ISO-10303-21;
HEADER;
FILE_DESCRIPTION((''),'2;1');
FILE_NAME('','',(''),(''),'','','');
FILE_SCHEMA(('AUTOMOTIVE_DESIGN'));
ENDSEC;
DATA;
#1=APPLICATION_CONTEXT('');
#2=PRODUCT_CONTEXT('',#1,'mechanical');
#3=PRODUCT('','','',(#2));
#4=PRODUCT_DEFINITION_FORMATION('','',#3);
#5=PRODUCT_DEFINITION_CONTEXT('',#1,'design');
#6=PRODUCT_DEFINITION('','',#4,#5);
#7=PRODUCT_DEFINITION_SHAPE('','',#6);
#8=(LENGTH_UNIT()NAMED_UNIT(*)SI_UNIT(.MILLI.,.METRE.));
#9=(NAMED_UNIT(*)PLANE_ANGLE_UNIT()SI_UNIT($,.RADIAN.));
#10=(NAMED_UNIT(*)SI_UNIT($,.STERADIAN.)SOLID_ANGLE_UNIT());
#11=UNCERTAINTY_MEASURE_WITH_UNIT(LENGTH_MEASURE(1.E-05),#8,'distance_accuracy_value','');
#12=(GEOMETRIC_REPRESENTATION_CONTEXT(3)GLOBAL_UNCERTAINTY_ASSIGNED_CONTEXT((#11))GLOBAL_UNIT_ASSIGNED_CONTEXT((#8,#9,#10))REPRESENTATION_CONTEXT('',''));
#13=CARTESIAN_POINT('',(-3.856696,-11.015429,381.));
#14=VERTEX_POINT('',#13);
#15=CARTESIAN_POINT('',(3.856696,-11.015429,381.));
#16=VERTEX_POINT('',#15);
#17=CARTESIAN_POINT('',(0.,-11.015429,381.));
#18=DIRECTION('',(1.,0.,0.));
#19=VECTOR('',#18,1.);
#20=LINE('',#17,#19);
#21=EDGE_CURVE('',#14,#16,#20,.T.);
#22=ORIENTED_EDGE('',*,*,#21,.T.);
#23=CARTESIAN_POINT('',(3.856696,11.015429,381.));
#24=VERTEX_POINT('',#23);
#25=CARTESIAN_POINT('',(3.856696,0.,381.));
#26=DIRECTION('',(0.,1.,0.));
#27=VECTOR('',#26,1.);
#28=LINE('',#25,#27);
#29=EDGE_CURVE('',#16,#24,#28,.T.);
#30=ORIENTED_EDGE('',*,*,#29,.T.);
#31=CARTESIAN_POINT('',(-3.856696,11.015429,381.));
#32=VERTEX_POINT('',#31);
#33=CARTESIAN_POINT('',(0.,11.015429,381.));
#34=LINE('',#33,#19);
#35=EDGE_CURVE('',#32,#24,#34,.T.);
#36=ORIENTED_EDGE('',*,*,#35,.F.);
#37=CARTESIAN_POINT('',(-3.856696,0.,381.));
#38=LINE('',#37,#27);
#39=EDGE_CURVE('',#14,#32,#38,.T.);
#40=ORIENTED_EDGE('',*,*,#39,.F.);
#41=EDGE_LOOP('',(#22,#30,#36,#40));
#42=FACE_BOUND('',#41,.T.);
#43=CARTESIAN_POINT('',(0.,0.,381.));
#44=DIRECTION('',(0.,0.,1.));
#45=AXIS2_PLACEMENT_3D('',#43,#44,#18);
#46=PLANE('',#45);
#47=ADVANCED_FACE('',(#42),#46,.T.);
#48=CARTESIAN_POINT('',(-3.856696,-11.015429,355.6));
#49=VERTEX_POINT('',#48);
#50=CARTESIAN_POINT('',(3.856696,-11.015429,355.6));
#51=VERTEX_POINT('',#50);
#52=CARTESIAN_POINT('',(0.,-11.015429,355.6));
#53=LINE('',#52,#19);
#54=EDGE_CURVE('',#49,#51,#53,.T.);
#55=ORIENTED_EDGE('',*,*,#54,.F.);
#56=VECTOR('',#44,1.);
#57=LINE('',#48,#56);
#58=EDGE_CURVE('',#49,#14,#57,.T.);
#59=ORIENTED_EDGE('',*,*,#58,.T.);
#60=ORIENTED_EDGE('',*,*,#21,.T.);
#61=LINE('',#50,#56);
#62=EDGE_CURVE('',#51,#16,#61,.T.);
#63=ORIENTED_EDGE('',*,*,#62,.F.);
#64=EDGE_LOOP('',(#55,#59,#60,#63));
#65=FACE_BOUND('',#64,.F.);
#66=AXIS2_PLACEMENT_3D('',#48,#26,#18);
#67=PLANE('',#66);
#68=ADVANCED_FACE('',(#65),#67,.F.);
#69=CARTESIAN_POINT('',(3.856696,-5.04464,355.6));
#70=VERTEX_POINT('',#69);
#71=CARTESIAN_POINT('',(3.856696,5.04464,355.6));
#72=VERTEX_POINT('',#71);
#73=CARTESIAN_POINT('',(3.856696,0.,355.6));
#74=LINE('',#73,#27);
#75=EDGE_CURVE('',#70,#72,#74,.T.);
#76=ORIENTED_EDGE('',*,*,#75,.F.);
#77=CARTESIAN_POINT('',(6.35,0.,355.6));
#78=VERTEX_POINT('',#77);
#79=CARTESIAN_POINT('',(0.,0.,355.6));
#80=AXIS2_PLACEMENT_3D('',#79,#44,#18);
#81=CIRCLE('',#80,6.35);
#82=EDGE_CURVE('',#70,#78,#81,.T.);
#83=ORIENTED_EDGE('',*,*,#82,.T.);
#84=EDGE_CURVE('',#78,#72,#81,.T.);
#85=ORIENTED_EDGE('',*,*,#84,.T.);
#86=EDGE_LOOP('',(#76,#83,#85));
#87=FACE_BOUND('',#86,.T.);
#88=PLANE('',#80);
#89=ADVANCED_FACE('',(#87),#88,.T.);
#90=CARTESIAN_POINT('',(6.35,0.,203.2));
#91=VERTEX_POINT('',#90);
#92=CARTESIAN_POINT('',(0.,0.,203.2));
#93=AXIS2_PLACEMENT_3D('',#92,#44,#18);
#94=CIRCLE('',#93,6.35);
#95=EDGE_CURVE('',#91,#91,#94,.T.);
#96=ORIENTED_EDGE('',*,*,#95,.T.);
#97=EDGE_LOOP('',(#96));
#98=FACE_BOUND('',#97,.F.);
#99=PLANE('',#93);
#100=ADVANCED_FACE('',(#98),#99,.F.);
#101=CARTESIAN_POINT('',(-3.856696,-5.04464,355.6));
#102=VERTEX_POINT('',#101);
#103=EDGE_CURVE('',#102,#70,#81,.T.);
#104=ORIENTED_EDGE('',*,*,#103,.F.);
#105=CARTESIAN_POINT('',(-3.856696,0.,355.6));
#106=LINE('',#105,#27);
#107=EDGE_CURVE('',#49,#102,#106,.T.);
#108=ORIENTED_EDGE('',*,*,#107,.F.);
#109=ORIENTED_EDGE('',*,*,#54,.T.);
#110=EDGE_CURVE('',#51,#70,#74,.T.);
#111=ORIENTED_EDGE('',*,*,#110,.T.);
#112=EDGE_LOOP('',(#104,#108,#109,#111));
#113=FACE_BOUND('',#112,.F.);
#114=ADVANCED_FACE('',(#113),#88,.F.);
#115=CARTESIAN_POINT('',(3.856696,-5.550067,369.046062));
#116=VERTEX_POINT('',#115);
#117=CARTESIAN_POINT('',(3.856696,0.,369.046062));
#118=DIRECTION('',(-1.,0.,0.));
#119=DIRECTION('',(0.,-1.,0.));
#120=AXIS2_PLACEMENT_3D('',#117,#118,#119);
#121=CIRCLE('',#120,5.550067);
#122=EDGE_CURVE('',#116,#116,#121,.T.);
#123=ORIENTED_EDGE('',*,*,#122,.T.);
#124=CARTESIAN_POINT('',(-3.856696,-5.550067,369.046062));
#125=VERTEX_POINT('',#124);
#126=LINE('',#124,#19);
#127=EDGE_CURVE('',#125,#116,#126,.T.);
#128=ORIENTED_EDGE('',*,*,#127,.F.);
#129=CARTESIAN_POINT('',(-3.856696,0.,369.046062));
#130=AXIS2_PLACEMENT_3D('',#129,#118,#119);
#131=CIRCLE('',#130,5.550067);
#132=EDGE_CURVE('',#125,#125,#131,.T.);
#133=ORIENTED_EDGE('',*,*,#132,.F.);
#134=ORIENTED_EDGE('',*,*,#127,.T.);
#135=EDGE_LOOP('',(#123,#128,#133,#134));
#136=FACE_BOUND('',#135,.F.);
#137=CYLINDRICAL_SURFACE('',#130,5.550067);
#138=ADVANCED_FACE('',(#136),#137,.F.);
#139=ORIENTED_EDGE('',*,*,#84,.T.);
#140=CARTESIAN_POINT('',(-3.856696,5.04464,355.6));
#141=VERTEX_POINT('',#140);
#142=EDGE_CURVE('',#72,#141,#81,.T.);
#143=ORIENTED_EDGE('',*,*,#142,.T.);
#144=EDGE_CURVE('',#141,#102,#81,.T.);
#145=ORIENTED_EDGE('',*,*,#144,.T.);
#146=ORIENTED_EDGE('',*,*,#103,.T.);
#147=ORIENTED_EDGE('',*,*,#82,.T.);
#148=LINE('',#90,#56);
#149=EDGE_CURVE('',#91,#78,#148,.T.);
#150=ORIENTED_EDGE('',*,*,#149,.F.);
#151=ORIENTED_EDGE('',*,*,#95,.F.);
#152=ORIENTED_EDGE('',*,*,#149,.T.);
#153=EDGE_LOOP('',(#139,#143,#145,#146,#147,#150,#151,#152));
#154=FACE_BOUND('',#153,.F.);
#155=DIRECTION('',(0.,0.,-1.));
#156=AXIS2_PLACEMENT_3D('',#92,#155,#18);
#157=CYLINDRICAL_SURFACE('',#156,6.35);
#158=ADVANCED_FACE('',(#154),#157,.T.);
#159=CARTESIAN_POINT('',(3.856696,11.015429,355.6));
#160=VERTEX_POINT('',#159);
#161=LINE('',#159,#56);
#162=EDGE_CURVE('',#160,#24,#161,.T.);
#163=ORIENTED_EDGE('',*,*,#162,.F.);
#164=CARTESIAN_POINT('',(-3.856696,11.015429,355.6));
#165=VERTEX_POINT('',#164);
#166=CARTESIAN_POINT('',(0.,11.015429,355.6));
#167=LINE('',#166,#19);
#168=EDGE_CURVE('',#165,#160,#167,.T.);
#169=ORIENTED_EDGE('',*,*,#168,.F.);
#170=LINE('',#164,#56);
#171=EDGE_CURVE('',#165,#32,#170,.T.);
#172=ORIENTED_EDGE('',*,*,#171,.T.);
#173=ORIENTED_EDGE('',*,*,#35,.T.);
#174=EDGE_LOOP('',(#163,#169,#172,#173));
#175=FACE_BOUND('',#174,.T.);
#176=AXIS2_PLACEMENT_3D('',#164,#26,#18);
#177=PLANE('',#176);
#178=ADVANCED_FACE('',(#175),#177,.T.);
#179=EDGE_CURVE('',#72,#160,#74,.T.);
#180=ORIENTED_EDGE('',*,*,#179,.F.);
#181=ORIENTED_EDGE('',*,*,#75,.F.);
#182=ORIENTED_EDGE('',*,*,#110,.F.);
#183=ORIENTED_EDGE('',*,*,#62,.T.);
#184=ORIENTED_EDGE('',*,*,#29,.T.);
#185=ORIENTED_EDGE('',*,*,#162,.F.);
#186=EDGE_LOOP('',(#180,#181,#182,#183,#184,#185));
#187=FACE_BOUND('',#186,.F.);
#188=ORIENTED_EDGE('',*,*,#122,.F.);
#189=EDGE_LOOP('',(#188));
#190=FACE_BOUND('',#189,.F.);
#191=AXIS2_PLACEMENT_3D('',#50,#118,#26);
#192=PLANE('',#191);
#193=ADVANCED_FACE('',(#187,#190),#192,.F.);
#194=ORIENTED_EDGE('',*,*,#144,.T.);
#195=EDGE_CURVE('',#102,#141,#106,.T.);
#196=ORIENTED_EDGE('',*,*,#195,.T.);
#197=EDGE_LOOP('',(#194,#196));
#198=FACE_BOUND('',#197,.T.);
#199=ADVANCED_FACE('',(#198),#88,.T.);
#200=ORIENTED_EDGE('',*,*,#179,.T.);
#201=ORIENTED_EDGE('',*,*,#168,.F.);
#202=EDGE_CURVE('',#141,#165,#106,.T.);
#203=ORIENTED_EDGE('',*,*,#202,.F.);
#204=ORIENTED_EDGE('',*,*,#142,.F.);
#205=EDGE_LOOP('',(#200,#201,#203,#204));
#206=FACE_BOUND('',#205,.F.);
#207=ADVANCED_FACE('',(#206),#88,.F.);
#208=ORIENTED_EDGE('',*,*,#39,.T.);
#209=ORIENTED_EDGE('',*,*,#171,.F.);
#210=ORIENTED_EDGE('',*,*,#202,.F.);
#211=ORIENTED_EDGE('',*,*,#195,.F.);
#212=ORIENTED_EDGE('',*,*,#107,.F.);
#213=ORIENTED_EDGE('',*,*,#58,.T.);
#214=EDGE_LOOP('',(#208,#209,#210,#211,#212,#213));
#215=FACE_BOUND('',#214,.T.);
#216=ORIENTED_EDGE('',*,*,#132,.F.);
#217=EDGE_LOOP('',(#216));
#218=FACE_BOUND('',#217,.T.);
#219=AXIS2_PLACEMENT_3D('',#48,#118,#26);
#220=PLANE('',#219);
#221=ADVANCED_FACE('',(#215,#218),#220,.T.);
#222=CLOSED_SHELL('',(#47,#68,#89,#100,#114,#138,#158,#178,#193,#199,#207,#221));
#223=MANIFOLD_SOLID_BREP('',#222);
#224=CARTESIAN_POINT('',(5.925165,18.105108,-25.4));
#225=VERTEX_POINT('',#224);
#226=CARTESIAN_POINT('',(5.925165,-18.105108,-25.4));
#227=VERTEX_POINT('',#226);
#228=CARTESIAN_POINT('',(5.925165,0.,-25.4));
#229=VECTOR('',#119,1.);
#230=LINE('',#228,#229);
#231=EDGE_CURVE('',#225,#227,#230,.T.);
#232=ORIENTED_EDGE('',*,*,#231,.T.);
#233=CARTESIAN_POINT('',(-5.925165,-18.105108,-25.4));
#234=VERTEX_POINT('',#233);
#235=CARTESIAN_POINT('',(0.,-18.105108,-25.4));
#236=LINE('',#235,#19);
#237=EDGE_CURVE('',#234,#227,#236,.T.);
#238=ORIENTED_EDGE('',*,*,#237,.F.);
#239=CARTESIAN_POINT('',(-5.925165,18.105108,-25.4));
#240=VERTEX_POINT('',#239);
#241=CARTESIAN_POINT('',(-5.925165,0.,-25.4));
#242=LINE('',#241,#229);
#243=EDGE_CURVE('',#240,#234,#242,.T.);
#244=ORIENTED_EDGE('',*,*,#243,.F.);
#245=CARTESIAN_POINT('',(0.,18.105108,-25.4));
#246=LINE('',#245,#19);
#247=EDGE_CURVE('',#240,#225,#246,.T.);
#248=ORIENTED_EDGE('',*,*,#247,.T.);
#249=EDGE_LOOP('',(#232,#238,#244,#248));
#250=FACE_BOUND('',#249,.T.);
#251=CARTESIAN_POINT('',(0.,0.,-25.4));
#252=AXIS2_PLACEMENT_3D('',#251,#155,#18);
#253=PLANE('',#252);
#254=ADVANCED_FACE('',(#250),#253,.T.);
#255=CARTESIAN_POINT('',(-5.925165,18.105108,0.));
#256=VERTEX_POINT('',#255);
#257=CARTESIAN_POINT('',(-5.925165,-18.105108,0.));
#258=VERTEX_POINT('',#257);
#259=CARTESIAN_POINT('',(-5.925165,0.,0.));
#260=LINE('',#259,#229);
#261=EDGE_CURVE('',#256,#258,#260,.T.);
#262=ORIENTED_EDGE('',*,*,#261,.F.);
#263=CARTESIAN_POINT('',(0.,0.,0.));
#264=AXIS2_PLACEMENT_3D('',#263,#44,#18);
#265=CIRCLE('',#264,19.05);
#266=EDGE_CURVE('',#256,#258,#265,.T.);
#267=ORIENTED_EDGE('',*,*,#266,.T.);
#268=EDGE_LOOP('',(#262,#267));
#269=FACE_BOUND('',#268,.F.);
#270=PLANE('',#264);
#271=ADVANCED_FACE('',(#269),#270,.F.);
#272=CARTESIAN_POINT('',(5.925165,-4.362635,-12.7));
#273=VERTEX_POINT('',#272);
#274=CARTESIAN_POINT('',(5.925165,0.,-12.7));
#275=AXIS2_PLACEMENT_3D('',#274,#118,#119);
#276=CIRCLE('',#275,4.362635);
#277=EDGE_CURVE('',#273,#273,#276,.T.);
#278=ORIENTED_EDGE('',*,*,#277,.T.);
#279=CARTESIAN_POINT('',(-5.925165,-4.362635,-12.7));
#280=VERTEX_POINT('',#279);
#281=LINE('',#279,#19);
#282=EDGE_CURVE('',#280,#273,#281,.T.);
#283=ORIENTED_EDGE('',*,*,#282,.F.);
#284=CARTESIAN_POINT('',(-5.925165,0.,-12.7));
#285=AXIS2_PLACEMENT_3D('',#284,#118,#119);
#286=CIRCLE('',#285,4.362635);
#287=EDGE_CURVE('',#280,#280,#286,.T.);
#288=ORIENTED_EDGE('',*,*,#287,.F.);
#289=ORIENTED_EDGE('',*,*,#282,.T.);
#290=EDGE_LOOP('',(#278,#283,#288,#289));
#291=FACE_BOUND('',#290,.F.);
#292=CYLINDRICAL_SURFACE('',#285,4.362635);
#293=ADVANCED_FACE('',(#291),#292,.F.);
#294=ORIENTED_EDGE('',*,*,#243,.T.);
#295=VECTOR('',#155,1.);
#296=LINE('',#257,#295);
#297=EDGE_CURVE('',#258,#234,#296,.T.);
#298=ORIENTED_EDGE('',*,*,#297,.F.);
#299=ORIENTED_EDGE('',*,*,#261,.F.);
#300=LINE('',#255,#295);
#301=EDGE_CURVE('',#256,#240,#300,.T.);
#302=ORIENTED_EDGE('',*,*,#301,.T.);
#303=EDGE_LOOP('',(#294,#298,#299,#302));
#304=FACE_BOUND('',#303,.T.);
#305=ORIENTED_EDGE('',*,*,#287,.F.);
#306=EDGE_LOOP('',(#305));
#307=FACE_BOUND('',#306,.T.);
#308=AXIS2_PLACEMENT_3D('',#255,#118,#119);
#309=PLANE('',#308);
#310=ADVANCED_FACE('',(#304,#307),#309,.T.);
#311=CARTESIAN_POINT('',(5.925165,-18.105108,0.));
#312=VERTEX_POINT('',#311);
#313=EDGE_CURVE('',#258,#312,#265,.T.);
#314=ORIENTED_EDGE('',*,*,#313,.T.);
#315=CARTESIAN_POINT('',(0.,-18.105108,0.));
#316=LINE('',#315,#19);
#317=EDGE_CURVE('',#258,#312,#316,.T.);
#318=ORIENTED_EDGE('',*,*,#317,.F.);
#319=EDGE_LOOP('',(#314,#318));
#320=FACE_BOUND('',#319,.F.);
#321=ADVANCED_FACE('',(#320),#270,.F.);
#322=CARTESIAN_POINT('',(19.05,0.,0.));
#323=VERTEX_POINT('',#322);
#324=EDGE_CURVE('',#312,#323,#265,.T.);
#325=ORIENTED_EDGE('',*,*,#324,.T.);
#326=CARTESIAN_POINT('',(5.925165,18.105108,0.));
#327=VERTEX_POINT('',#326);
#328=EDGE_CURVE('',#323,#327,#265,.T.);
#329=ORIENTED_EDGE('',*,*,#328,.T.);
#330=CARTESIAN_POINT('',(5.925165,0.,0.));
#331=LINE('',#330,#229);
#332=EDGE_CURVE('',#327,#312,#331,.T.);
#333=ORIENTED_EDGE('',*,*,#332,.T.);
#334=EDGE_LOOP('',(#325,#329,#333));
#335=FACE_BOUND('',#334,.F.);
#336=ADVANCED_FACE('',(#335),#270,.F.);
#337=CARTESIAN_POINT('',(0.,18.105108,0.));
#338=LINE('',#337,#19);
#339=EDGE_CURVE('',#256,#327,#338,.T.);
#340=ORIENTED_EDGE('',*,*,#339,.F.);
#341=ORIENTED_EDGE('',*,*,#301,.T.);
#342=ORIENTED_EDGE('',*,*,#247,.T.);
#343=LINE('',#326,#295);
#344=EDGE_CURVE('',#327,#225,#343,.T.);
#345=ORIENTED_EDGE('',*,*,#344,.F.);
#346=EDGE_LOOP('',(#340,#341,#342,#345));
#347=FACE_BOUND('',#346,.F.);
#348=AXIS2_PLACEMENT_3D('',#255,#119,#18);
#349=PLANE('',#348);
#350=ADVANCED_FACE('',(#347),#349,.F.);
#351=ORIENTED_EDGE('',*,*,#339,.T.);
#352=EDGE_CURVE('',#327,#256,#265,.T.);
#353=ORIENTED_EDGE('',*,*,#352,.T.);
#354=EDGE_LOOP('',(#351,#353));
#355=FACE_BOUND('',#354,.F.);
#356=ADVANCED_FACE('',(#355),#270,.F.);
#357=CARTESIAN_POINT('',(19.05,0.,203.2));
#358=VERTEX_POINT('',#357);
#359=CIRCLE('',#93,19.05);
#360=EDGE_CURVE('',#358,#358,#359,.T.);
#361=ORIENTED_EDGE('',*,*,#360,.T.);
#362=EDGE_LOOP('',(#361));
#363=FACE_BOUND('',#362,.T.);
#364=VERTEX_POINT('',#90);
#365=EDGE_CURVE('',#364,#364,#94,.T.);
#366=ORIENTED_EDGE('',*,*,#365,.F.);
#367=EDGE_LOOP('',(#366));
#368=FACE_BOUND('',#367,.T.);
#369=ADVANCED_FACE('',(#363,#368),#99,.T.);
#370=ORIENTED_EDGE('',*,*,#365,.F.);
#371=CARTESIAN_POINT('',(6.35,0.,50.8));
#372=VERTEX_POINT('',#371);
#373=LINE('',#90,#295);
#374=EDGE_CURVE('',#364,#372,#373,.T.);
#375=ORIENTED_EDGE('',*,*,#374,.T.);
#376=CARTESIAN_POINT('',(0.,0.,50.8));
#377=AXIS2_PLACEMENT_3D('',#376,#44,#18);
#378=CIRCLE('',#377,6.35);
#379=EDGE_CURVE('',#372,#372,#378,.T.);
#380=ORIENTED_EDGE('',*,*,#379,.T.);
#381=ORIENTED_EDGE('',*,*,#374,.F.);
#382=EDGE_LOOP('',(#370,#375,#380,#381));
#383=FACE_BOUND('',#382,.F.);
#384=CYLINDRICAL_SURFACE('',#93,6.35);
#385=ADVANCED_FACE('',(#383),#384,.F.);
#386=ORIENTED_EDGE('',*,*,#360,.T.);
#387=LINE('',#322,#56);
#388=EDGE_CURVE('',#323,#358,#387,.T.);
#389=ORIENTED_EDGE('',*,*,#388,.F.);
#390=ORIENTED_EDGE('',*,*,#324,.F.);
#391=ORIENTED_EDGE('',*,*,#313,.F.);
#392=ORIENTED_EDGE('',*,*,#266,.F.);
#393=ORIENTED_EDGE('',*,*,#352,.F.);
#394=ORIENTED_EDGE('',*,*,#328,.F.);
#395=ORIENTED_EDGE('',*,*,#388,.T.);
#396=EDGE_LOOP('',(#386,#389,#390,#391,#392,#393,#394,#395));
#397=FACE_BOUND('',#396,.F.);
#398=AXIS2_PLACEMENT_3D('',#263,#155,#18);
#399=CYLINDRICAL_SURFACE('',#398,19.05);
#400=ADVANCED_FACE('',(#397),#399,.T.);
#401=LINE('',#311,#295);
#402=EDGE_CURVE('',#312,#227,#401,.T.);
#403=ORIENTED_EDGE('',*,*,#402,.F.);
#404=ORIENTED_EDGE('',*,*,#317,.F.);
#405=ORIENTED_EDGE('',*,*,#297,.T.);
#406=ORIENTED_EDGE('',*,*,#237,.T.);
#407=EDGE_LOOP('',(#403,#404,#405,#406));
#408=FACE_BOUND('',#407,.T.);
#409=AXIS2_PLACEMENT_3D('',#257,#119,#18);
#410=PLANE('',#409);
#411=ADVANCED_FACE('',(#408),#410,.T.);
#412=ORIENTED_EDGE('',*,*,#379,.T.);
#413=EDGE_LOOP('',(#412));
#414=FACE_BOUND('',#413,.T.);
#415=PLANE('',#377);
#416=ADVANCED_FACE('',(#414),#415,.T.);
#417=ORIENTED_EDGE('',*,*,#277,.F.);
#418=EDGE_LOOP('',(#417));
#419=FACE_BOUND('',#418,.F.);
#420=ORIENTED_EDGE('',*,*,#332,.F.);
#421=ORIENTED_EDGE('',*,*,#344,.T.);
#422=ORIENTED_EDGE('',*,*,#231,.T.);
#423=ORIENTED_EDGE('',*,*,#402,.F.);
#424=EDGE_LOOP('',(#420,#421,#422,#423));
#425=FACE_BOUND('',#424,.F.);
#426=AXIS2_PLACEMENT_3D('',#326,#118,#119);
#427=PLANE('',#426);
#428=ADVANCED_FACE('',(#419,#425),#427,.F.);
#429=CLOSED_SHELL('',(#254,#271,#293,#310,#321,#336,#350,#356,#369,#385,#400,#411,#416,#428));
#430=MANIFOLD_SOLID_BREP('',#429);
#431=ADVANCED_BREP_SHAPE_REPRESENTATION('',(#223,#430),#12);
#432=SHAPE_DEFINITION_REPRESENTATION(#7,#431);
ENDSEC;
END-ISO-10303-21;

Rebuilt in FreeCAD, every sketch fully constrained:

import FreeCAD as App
import Part
import Sketcher
from FreeCAD import Vector
Q = App.Units.Quantity

doc = App.newDocument("Part")
body = doc.addObject("PartDesign::Body", "Body")

# Sketch on XY plane
sketch1 = body.newObject("Sketcher::SketchObject", "Sketch")
sketch1.AttachmentSupport = (doc.getObject("XY_Plane"), [""])
sketch1.MapMode = "FlatFace"
sketch1.addGeometry(Part.Circle(Vector(0, 0, 0), Vector(0, 0, 1), 19), False)
sketch1.addConstraint([
    Sketcher.Constraint("Coincident", 0, 3, -1, 1),
    Sketcher.Constraint("Diameter", 0, Q("1.5 in")),
])
pad1 = body.newObject("PartDesign::Pad", "Pad")
pad1.Profile = sketch1
pad1.Length = Q("8 in")

# Sketch on XY plane
sketch2 = body.newObject("Sketcher::SketchObject", "Sketch001")
sketch2.AttachmentSupport = (doc.getObject("XY_Plane"), [""])
sketch2.MapMode = "FlatFace"
sketch2.AttachmentOffset = App.Placement(Vector(0, 0, 8 * 25.4), App.Rotation())
sketch2.addGeometry(Part.Circle(Vector(0, 0, 0), Vector(0, 0, 1), 6), False)
sketch2.addConstraint([
    Sketcher.Constraint("Coincident", 0, 3, -1, 1),
    Sketcher.Constraint("Diameter", 0, Q("0.5 in")),
])
pocket1 = body.newObject("PartDesign::Pocket", "Pocket")
pocket1.Profile = sketch2
pocket1.Length = Q("6 in")

# Sketch on XY plane
sketch3 = body.newObject("Sketcher::SketchObject", "Sketch002")
sketch3.AttachmentSupport = (doc.getObject("XY_Plane"), [""])
sketch3.MapMode = "FlatFace"
sketch3.addGeometry([
    Part.LineSegment(Vector(-6, -18, 0), Vector(-6, 18, 0)),
    Part.LineSegment(Vector(-6, 18, 0), Vector(6, 18, 0)),
    Part.LineSegment(Vector(6, 18, 0), Vector(6, -18, 0)),
    Part.LineSegment(Vector(6, -18, 0), Vector(-6, -18, 0)),
], False)
sketch3.addConstraint([
    Sketcher.Constraint("Coincident", 0, 2, 1, 1),
    Sketcher.Constraint("Coincident", 1, 2, 2, 1),
    Sketcher.Constraint("Coincident", 2, 2, 3, 1),
    Sketcher.Constraint("Coincident", 3, 2, 0, 1),
    Sketcher.Constraint("Vertical", 0),
    Sketcher.Constraint("Horizontal", 1),
    Sketcher.Constraint("Vertical", 2),
    Sketcher.Constraint("Horizontal", 3),
    Sketcher.Constraint("Symmetric", 0, 2, 2, 2, -1, 1),
    Sketcher.Constraint("DistanceX", 1, 1, 1, 2, Q("11.85033 mm")),
    Sketcher.Constraint("DistanceY", 0, 1, 0, 2, Q("36.210216 mm")),
])
pad2 = body.newObject("PartDesign::Pad", "Pad001")
pad2.Profile = sketch3
pad2.Length = Q("1 in")
pad2.Reversed = True

# Sketch on YZ plane
sketch4 = body.newObject("Sketcher::SketchObject", "Sketch003")
sketch4.AttachmentSupport = (doc.getObject("YZ_Plane"), [""])
sketch4.MapMode = "FlatFace"
sketch4.AttachmentOffset = App.Placement(Vector(0, 0, -5.925165), App.Rotation())
sketch4.addGeometry(Part.Circle(Vector(0, -12.7, 0), Vector(0, 0, 1), 4.4), False)
sketch4.addConstraint([
    Sketcher.Constraint("PointOnObject", 0, 3, -2),
    Sketcher.Constraint("DistanceY", 0, 3, -1, 1, Q("0.5 in")),
    Sketcher.Constraint("Diameter", 0, Q("8.72527 mm")),
])
pocket2 = body.newObject("PartDesign::Pocket", "Pocket001")
pocket2.Profile = sketch4
pocket2.Length = Q("1 in")
pocket2.Reversed = True
body2 = doc.addObject("PartDesign::Body", "Body001")

# Sketch on XY plane
sketch5 = body2.newObject("Sketcher::SketchObject", "Sketch004")
sketch5.AttachmentSupport = (doc.getObject("XY_Plane001"), [""])
sketch5.MapMode = "FlatFace"
sketch5.AttachmentOffset = App.Placement(Vector(0, 0, 8 * 25.4), App.Rotation())
sketch5.addGeometry(Part.Circle(Vector(0, 0, 0), Vector(0, 0, 1), 6), False)
sketch5.addConstraint([
    Sketcher.Constraint("Coincident", 0, 3, -1, 1),
    Sketcher.Constraint("Diameter", 0, Q("0.5 in")),
])
pad3 = body2.newObject("PartDesign::Pad", "Pad002")
pad3.Profile = sketch5
pad3.Length = Q("6 in")

# Sketch on XY plane
sketch6 = body2.newObject("Sketcher::SketchObject", "Sketch005")
sketch6.AttachmentSupport = (doc.getObject("XY_Plane001"), [""])
sketch6.MapMode = "FlatFace"
sketch6.AttachmentOffset = App.Placement(Vector(0, 0, 14 * 25.4), App.Rotation())
sketch6.addGeometry([
    Part.LineSegment(Vector(-4, 11, 0), Vector(-4, -11, 0)),
    Part.LineSegment(Vector(-4, -11, 0), Vector(4, -11, 0)),
    Part.LineSegment(Vector(4, -11, 0), Vector(4, 11, 0)),
    Part.LineSegment(Vector(4, 11, 0), Vector(-4, 11, 0)),
], False)
sketch6.addConstraint([
    Sketcher.Constraint("Coincident", 0, 2, 1, 1),
    Sketcher.Constraint("Coincident", 1, 2, 2, 1),
    Sketcher.Constraint("Coincident", 2, 2, 3, 1),
    Sketcher.Constraint("Coincident", 3, 2, 0, 1),
    Sketcher.Constraint("Vertical", 0),
    Sketcher.Constraint("Horizontal", 1),
    Sketcher.Constraint("Vertical", 2),
    Sketcher.Constraint("Horizontal", 3),
    Sketcher.Constraint("Symmetric", 0, 2, 2, 2, -1, 1),
    Sketcher.Constraint("DistanceX", 1, 1, 1, 2, Q("7.713392 mm")),
    Sketcher.Constraint("DistanceY", 0, 2, 0, 1, Q("22.030858 mm")),
])
pad4 = body2.newObject("PartDesign::Pad", "Pad003")
pad4.Profile = sketch6
pad4.Length = Q("1 in")

# Sketch on YZ plane
sketch7 = body2.newObject("Sketcher::SketchObject", "Sketch006")
sketch7.AttachmentSupport = (doc.getObject("YZ_Plane001"), [""])
sketch7.MapMode = "FlatFace"
sketch7.AttachmentOffset = App.Placement(Vector(0, 0, -3.856696), App.Rotation())
sketch7.addGeometry(Part.Circle(Vector(0, 369, 0), Vector(0, 0, 1), 6), False)
sketch7.addConstraint([
    Sketcher.Constraint("PointOnObject", 0, 3, -2),
    Sketcher.Constraint("Diameter", 0, Q("11.100134 mm")),
    Sketcher.Constraint("DistanceY", -1, 1, 0, 3, Q("369.046062 mm")),
])
pocket3 = body2.newObject("PartDesign::Pocket", "Pocket002")
pocket3.Profile = sketch7
pocket3.Length = Q("1 in")
pocket3.Reversed = True

doc.recompute()
